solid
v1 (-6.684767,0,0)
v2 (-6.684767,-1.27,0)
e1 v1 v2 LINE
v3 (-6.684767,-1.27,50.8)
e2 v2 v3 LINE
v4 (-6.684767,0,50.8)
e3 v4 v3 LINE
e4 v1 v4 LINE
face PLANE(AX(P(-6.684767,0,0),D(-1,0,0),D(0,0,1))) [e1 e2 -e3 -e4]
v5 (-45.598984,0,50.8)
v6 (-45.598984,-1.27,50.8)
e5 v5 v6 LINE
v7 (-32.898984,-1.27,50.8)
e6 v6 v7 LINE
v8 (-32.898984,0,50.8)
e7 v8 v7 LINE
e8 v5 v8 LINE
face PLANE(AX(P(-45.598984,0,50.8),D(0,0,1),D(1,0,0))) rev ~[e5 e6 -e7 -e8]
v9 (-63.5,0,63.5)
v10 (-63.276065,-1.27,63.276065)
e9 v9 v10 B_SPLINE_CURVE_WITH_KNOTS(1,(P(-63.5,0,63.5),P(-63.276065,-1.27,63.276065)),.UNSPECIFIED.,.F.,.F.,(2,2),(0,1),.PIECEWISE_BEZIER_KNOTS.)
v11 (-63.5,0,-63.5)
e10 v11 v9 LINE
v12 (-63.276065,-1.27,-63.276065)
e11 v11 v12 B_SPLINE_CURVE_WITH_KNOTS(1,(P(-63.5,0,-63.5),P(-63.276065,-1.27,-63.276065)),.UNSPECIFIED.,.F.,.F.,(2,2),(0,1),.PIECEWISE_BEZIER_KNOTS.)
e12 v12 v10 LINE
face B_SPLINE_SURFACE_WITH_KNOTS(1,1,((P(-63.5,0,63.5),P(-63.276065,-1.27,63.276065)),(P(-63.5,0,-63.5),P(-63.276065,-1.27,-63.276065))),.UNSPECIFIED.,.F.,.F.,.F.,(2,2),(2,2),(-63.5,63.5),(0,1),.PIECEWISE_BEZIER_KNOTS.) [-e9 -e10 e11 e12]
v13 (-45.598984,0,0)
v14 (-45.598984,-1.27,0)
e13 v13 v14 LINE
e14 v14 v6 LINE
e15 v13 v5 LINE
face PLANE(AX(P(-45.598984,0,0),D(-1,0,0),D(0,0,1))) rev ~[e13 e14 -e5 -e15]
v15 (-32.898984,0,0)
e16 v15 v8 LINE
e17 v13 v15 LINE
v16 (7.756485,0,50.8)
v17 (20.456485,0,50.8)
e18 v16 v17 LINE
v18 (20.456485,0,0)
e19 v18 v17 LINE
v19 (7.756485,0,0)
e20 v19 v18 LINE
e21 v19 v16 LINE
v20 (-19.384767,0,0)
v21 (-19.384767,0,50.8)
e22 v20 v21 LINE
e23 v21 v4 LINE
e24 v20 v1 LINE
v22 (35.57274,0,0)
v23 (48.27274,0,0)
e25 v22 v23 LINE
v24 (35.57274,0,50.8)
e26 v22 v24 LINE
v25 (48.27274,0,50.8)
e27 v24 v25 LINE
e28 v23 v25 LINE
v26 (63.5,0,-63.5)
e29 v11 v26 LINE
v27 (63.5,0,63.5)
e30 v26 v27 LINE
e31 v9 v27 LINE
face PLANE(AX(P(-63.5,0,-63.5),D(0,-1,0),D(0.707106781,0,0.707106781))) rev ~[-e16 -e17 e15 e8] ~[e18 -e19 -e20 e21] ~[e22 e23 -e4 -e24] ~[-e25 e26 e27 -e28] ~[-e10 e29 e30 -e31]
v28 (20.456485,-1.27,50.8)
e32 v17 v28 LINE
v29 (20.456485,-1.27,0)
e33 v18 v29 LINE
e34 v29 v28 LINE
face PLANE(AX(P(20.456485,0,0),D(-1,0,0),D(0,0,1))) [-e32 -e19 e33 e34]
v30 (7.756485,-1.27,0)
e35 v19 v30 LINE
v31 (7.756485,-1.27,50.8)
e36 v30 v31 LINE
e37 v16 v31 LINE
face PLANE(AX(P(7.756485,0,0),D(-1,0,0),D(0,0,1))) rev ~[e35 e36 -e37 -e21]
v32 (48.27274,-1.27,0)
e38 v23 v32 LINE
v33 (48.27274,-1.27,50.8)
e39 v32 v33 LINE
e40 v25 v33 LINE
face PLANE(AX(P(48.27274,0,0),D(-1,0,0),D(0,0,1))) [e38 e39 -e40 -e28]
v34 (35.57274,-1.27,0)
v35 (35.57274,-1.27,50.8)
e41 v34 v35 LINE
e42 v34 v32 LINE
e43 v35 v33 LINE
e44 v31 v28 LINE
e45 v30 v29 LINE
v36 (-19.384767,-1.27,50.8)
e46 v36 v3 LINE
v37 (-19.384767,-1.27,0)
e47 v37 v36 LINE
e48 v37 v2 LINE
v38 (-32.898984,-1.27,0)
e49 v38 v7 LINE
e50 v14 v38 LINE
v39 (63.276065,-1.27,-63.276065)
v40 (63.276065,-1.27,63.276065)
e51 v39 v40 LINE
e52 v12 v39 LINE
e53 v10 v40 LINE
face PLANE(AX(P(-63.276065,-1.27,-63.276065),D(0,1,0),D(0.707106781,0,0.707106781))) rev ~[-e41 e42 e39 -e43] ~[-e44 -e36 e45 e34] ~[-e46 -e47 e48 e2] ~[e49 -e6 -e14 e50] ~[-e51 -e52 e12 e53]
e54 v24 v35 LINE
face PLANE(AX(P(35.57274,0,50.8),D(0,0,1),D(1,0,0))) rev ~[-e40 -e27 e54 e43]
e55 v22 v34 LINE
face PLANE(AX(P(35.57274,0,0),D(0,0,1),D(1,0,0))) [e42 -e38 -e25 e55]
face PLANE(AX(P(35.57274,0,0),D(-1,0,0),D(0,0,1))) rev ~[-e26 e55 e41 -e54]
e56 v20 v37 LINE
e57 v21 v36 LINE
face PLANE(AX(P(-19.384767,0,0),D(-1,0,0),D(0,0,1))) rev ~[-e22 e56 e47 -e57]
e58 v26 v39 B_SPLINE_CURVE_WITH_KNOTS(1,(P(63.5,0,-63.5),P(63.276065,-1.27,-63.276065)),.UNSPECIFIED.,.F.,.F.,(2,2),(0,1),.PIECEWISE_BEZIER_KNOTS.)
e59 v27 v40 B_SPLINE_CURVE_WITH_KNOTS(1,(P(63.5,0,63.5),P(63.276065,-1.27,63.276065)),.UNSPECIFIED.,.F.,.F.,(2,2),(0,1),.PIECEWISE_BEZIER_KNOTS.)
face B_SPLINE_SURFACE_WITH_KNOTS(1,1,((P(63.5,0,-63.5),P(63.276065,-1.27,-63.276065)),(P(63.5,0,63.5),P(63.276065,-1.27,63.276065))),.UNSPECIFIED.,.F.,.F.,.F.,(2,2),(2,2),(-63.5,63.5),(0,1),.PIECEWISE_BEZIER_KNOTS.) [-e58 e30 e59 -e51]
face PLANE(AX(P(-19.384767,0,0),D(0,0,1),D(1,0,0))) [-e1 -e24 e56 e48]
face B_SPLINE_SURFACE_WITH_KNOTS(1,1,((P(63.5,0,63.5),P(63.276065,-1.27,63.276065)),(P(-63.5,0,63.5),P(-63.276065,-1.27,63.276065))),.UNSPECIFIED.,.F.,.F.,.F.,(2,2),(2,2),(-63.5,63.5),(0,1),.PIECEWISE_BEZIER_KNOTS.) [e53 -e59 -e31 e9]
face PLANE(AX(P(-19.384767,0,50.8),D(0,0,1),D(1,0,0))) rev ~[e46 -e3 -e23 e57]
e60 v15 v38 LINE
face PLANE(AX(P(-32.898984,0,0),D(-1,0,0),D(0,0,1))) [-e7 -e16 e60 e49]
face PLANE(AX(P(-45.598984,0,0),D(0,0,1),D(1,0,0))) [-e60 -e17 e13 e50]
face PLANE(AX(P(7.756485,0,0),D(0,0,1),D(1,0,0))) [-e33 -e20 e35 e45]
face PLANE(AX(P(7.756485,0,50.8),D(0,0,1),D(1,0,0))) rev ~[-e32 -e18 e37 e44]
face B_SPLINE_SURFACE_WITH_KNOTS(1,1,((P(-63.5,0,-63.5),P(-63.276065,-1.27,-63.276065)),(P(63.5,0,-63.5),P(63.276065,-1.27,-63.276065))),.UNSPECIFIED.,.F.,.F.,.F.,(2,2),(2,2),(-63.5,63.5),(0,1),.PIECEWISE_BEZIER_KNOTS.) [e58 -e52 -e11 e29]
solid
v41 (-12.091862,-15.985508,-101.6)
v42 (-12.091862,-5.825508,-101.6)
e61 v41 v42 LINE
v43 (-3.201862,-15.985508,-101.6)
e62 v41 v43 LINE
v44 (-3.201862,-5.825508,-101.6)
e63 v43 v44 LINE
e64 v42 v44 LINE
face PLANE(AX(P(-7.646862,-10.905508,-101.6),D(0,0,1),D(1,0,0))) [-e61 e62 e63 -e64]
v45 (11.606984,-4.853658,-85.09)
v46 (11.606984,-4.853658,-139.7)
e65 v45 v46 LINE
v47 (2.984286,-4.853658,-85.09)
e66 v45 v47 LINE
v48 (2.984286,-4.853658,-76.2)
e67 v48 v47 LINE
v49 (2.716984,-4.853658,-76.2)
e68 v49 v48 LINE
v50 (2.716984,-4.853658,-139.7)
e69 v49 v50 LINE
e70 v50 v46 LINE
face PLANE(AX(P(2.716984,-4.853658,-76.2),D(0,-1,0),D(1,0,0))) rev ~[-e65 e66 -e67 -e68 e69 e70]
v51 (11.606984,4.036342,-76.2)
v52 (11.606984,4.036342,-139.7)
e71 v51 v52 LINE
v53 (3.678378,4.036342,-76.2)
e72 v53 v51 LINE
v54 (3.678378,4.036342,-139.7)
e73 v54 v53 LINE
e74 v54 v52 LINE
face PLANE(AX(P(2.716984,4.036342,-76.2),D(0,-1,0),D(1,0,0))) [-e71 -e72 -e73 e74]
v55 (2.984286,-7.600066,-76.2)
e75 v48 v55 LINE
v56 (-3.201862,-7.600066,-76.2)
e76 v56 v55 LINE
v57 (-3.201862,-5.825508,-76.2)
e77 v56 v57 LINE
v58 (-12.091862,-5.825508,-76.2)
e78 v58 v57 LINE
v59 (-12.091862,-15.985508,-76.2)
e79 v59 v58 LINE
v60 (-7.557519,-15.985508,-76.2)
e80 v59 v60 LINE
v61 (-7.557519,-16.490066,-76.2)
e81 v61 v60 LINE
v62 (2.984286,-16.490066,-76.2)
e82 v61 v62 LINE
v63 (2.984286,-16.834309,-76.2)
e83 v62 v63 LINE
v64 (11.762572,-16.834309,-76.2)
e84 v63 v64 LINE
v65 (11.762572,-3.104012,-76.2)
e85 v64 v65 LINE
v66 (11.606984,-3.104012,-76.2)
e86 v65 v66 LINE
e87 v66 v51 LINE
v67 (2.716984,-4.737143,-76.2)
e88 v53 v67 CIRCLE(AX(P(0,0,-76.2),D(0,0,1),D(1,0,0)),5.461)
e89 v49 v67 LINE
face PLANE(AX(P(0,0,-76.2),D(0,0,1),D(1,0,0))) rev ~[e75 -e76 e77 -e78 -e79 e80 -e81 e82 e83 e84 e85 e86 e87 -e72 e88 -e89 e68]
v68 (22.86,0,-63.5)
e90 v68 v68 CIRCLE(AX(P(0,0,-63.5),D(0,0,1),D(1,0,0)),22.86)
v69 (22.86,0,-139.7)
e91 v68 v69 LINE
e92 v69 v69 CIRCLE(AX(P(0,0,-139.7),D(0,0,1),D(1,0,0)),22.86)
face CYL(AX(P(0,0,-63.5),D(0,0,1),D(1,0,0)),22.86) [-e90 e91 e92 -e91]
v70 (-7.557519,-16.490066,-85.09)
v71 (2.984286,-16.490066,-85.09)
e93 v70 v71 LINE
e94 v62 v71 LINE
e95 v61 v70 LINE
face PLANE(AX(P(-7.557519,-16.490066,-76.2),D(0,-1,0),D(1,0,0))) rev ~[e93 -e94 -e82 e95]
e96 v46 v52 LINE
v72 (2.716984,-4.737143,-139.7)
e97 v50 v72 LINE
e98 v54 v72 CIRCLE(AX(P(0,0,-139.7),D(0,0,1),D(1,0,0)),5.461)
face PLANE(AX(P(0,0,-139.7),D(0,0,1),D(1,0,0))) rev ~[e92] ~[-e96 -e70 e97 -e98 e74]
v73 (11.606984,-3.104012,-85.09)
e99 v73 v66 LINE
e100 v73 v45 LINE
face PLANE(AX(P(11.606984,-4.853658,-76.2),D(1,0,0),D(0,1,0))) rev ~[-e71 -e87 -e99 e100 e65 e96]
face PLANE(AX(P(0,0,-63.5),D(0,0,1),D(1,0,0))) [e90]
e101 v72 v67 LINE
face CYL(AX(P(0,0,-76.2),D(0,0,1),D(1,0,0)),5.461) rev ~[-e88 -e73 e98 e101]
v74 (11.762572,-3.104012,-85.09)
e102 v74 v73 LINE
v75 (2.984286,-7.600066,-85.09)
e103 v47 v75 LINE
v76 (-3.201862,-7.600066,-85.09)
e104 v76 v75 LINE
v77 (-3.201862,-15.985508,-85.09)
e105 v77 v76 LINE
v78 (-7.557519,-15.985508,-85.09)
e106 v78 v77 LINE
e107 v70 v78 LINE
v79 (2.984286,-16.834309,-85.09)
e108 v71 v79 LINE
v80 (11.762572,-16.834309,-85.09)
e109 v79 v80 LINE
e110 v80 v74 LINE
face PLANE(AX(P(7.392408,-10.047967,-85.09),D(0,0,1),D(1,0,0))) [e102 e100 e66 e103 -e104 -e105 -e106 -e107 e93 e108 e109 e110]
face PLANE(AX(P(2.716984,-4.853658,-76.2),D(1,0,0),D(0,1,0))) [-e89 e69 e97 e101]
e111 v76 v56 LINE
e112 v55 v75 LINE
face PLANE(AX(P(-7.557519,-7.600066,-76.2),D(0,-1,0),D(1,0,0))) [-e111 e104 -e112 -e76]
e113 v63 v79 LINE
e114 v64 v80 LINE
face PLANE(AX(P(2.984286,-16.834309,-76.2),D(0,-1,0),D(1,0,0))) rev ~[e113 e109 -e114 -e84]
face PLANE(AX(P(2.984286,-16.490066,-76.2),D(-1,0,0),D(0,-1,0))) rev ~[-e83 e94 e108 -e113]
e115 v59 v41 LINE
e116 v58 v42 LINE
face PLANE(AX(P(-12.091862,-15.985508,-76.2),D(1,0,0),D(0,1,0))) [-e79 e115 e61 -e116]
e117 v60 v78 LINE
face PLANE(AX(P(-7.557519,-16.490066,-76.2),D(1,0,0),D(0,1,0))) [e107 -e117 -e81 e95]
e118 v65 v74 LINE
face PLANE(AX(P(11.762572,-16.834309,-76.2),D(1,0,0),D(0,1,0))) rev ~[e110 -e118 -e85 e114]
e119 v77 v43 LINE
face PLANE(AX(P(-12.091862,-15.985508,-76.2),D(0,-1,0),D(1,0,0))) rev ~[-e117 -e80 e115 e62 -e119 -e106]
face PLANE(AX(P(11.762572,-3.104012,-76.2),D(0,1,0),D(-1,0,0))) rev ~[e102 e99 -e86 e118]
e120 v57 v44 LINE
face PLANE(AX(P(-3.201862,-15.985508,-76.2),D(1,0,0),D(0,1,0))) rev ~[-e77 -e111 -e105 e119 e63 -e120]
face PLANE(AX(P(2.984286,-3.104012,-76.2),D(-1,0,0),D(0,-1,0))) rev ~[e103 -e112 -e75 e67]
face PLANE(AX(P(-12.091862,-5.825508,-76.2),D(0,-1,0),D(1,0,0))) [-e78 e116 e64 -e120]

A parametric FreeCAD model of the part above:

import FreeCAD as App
import Part
import Sketcher
Q = App.Units.Quantity


def add_polygon(sketch, points):
    """Adds a closed chain of lines whose ends are joined by coincident constraints."""
    first, n = sketch.GeometryCount, len(points)
    for a, b in zip(points, points[1:] + points[:1]):
        sketch.addGeometry(Part.LineSegment(App.Vector(*a, 0), App.Vector(*b, 0)), False)
    for i in range(n):
        sketch.addConstraint(Sketcher.Constraint("Coincident", first + i, 2, first + (i + 1) % n, 1))

doc = App.newDocument("Part")
params = doc.addObject("Spreadsheet::Sheet", "Params")
for row, (alias, value) in enumerate([
    ("sketch1_width", "5 in"),
    ("pad1_length", "0.05 in"),
    ("pad1_taper", "-10 deg"),
    ("sketch2_height", "2 in"),
    ("sketch2_width", "0.5 in"),
    ("pocket1_length", "1 in"),
    ("sketch3_height", "2 in"),
    ("sketch3_width", "0.5 in"),
    ("pocket2_length", "1 in"),
    ("sketch4_height", "2 in"),
    ("sketch4_width", "0.5 in"),
    ("pocket3_length", "1 in"),
    ("sketch5_height", "2 in"),
    ("sketch5_width", "0.5 in"),
    ("pocket4_length", "1 in"),
    ("sketch6_diameter", "1.8 in"),
    ("pad2_length", "3 in"),
    ("sketch7_diameter", "0.43 in"),
    ("pocket5_length", "2.75 in"),
    ("sketch8_width", "0.35 in"),
    ("pocket6_length", "2.5 in"),
    ("sketch9_height", "0.35 in"),
    ("pocket7_length", "0.35 in"),
    ("sketch10_height", "0.4 in"),
    ("sketch10_width", "0.35 in"),
    ("pocket8_length", "1 in"),
], start=1):
    params.set(f"A{row}", alias)
    params.set(f"B{row}", "=" + value)
    params.setAlias(f"B{row}", alias)

body = doc.addObject("PartDesign::Body", "Body")

# Sketch on XZ plane
sketch1 = body.newObject("Sketcher::SketchObject", "Sketch")
sketch1.AttachmentSupport = (doc.getObject("XZ_Plane"), [""])
sketch1.MapMode = "FlatFace"
add_polygon(sketch1, [(-64, 64), (-64, -64), (64, -64), (64, 64)])  # lines 0-3
sketch1.addConstraint([
    Sketcher.Constraint("Vertical", 0),
    Sketcher.Constraint("Horizontal", 1),
    Sketcher.Constraint("Vertical", 2),
    Sketcher.Constraint("Horizontal", 3),
    Sketcher.Constraint("Symmetric", 0, 2, 2, 2, -1, 1),
    Sketcher.Constraint("Equal", 3, 0),
    Sketcher.Constraint("DistanceX", 1, 1, 1, 2, Q("5 in")),
])
sketch1.setExpression("Constraints[10]", "Params.sketch1_width")
pad1 = body.newObject("PartDesign::Pad", "Pad")
pad1.Profile = sketch1
pad1.setExpression("Length", "Params.pad1_length")
pad1.setExpression("TaperAngle", "Params.pad1_taper")

# Sketch on XZ plane
sketch2 = body.newObject("Sketcher::SketchObject", "Sketch001")
sketch2.AttachmentSupport = (doc.getObject("XZ_Plane"), [""])
sketch2.MapMode = "FlatFace"
add_polygon(sketch2, [(-46, 51), (-46, 0), (-33, 0), (-33, 51)])  # lines 0-3
sketch2.addConstraint([
    Sketcher.Constraint("Vertical", 0),
    Sketcher.Constraint("Horizontal", 1),
    Sketcher.Constraint("Vertical", 2),
    Sketcher.Constraint("Horizontal", 3),
    Sketcher.Constraint("PointOnObject", 0, 2, -1),
    Sketcher.Constraint("DistanceY", 0, 2, 0, 1, Q("2 in")),
    Sketcher.Constraint("DistanceX", 1, 1, 1, 2, Q("0.5 in")),
    Sketcher.Constraint("DistanceX", 0, 2, -1, 1, Q("45.598984 mm")),
])
sketch2.setExpression("Constraints[9]", "Params.sketch2_height")
sketch2.setExpression("Constraints[10]", "Params.sketch2_width")
pocket1 = body.newObject("PartDesign::Pocket", "Pocket")
pocket1.Profile = sketch2
pocket1.setExpression("Length", "Params.pocket1_length")
pocket1.Reversed = True

# Sketch on XZ plane
sketch3 = body.newObject("Sketcher::SketchObject", "Sketch002")
sketch3.AttachmentSupport = (doc.getObject("XZ_Plane"), [""])
sketch3.MapMode = "FlatFace"
add_polygon(sketch3, [(-19, 51), (-19, 0), (-7, 0), (-7, 51)])  # lines 0-3
sketch3.addConstraint([
    Sketcher.Constraint("Vertical", 0),
    Sketcher.Constraint("Horizontal", 1),
    Sketcher.Constraint("Vertical", 2),
    Sketcher.Constraint("Horizontal", 3),
    Sketcher.Constraint("PointOnObject", 0, 2, -1),
    Sketcher.Constraint("DistanceY", 0, 2, 0, 1, Q("2 in")),
    Sketcher.Constraint("DistanceX", 1, 1, 1, 2, Q("0.5 in")),
    Sketcher.Constraint("DistanceX", 0, 2, -1, 1, Q("19.384767 mm")),
])
sketch3.setExpression("Constraints[9]", "Params.sketch3_height")
sketch3.setExpression("Constraints[10]", "Params.sketch3_width")
pocket2 = body.newObject("PartDesign::Pocket", "Pocket001")
pocket2.Profile = sketch3
pocket2.setExpression("Length", "Params.pocket2_length")
pocket2.Reversed = True

# Sketch on XZ plane
sketch4 = body.newObject("Sketcher::SketchObject", "Sketch003")
sketch4.AttachmentSupport = (doc.getObject("XZ_Plane"), [""])
sketch4.MapMode = "FlatFace"
add_polygon(sketch4, [(8, 51), (8, 0), (20, 0), (20, 51)])  # lines 0-3
sketch4.addConstraint([
    Sketcher.Constraint("Vertical", 0),
    Sketcher.Constraint("Horizontal", 1),
    Sketcher.Constraint("Vertical", 2),
    Sketcher.Constraint("Horizontal", 3),
    Sketcher.Constraint("PointOnObject", 0, 2, -1),
    Sketcher.Constraint("DistanceY", 0, 2, 0, 1, Q("2 in")),
    Sketcher.Constraint("DistanceX", 1, 1, 1, 2, Q("0.5 in")),
    Sketcher.Constraint("DistanceX", -1, 1, 0, 2, Q("7.756485 mm")),
])
sketch4.setExpression("Constraints[9]", "Params.sketch4_height")
sketch4.setExpression("Constraints[10]", "Params.sketch4_width")
pocket3 = body.newObject("PartDesign::Pocket", "Pocket002")
pocket3.Profile = sketch4
pocket3.setExpression("Length", "Params.pocket3_length")
pocket3.Reversed = True

# Sketch on XZ plane
sketch5 = body.newObject("Sketcher::SketchObject", "Sketch004")
sketch5.AttachmentSupport = (doc.getObject("XZ_Plane"), [""])
sketch5.MapMode = "FlatFace"
add_polygon(sketch5, [(36, 51), (36, 0), (48, 0), (48, 51)])  # lines 0-3
sketch5.addConstraint([
    Sketcher.Constraint("Vertical", 0),
    Sketcher.Constraint("Horizontal", 1),
    Sketcher.Constraint("Vertical", 2),
    Sketcher.Constraint("Horizontal", 3),
    Sketcher.Constraint("PointOnObject", 0, 2, -1),
    Sketcher.Constraint("DistanceY", 0, 2, 0, 1, Q("2 in")),
    Sketcher.Constraint("DistanceX", 1, 1, 1, 2, Q("0.5 in")),
    Sketcher.Constraint("DistanceX", -1, 1, 0, 2, Q("35.57274 mm")),
])
sketch5.setExpression("Constraints[9]", "Params.sketch5_height")
sketch5.setExpression("Constraints[10]", "Params.sketch5_width")
pocket4 = body.newObject("PartDesign::Pocket", "Pocket003")
pocket4.Profile = sketch5
pocket4.setExpression("Length", "Params.pocket4_length")
pocket4.Reversed = True
body2 = doc.addObject("PartDesign::Body", "Body001")

# Sketch on XY plane
sketch6 = body2.newObject("Sketcher::SketchObject", "Sketch005")
sketch6.AttachmentSupport = (doc.getObject("XY_Plane001"), [""])
sketch6.MapMode = "FlatFace"
sketch6.AttachmentOffset = App.Placement(App.Vector(0, 0, -2.5 * 25.4), App.Rotation())
sketch6.addGeometry(Part.Circle(App.Vector(0, 0, 0), App.Vector(0, 0, 1), 23), False)
sketch6.addConstraint([
    Sketcher.Constraint("Coincident", 0, 3, -1, 1),
    Sketcher.Constraint("Diameter", 0, Q("1.8 in")),
])
sketch6.setExpression("Constraints[1]", "Params.sketch6_diameter")
pad2 = body2.newObject("PartDesign::Pad", "Pad001")
pad2.Profile = sketch6
pad2.setExpression("Length", "Params.pad2_length")
pad2.Reversed = True

# Sketch on XY plane
sketch7 = body2.newObject("Sketcher::SketchObject", "Sketch006")
sketch7.AttachmentSupport = (doc.getObject("XY_Plane001"), [""])
sketch7.MapMode = "FlatFace"
sketch7.AttachmentOffset = App.Placement(App.Vector(0, 0, -3 * 25.4), App.Rotation())
sketch7.addGeometry(Part.Circle(App.Vector(0, 0, 0), App.Vector(0, 0, 1), 5), False)
sketch7.addConstraint([
    Sketcher.Constraint("Coincident", 0, 3, -1, 1),
    Sketcher.Constraint("Diameter", 0, Q("0.43 in")),
])
sketch7.setExpression("Constraints[1]", "Params.sketch7_diameter")
pocket5 = body2.newObject("PartDesign::Pocket", "Pocket004")
pocket5.Profile = sketch7
pocket5.setExpression("Length", "Params.pocket5_length")

# Sketch on XY plane
sketch8 = body2.newObject("Sketcher::SketchObject", "Sketch007")
sketch8.AttachmentSupport = (doc.getObject("XY_Plane001"), [""])
sketch8.MapMode = "FlatFace"
sketch8.AttachmentOffset = App.Placement(App.Vector(0, 0, -3 * 25.4), App.Rotation())
add_polygon(sketch8, [(3, 4), (3, -5), (12, -5), (12, 4)])  # lines 0-3
sketch8.addConstraint([
    Sketcher.Constraint("Vertical", 0),
    Sketcher.Constraint("Horizontal", 1),
    Sketcher.Constraint("Vertical", 2),
    Sketcher.Constraint("Horizontal", 3),
    Sketcher.Constraint("Equal", 3, 0),
    Sketcher.Constraint("DistanceX", 1, 1, 1, 2, Q("0.35 in")),
    Sketcher.Constraint("DistanceY", 0, 2, -1, 1, Q("4.853658 mm")),
    Sketcher.Constraint("DistanceX", -1, 1, 0, 2, Q("2.716984 mm")),
])
sketch8.setExpression("Constraints[9]", "Params.sketch8_width")
pocket6 = body2.newObject("PartDesign::Pocket", "Pocket005")
pocket6.Profile = sketch8
pocket6.setExpression("Length", "Params.pocket6_length")

# Sketch on XY plane
sketch9 = body2.newObject("Sketcher::SketchObject", "Sketch008")
sketch9.AttachmentSupport = (doc.getObject("XY_Plane001"), [""])
sketch9.MapMode = "FlatFace"
sketch9.AttachmentOffset = App.Placement(App.Vector(0, 0, -3 * 25.4), App.Rotation())
add_polygon(sketch9, [(2.98, -16.49), (2.98, -16.83), (11.76, -16.83), (11.76, -3.1), (2.98, -3.1), (2.98, -7.6), (-7.56, -7.6), (-7.56, -16.49)])  # lines 0-7
sketch9.addConstraint([
    Sketcher.Constraint("Vertical", 0),
    Sketcher.Constraint("Horizontal", 1),
    Sketcher.Constraint("Vertical", 2),
    Sketcher.Constraint("Horizontal", 3),
    Sketcher.Constraint("Vertical", 4),
    Sketcher.Constraint("Horizontal", 5),
    Sketcher.Constraint("Vertical", 6),
    Sketcher.Constraint("Horizontal", 7),
    Sketcher.Constraint("Vertical", 0, 2, 3, 2),
    Sketcher.Constraint("DistanceY", 6, 2, 6, 1, Q("0.35 in")),
    Sketcher.Constraint("DistanceX", 1, 1, 1, 2, Q("8.778286 mm")),
    Sketcher.Constraint("DistanceX", 5, 2, 5, 1, Q("10.541805 mm")),
    Sketcher.Constraint("DistanceY", 0, 2, 0, 1, Q("0.344243 mm")),
    Sketcher.Constraint("DistanceY", 2, 1, 2, 2, Q("13.730296 mm")),
    Sketcher.Constraint("DistanceY", 0, 2, -1, 1, Q("16.834309 mm")),
    Sketcher.Constraint("DistanceX", -1, 1, 1, 2, Q("11.762572 mm")),
])
sketch9.setExpression("Constraints[17]", "Params.sketch9_height")
pocket7 = body2.newObject("PartDesign::Pocket", "Pocket006")
pocket7.Profile = sketch9
pocket7.setExpression("Length", "Params.pocket7_length")

# Sketch on XY plane
sketch10 = body2.newObject("Sketcher::SketchObject", "Sketch009")
sketch10.AttachmentSupport = (doc.getObject("XY_Plane001"), [""])
sketch10.MapMode = "FlatFace"
sketch10.AttachmentOffset = App.Placement(App.Vector(0, 0, -3 * 25.4), App.Rotation())
add_polygon(sketch10, [(-12, -6), (-12, -16), (-3, -16), (-3, -6)])  # lines 0-3
sketch10.addConstraint([
    Sketcher.Constraint("Vertical", 0),
    Sketcher.Constraint("Horizontal", 1),
    Sketcher.Constraint("Vertical", 2),
    Sketcher.Constraint("Horizontal", 3),
    Sketcher.Constraint("DistanceY", 0, 2, 0, 1, Q("0.4 in")),
    Sketcher.Constraint("DistanceX", 1, 1, 1, 2, Q("0.35 in")),
    Sketcher.Constraint("DistanceX", 0, 2, -1, 1, Q("12.091862 mm")),
    Sketcher.Constraint("DistanceY", 0, 2, -1, 1, Q("15.985508 mm")),
])
sketch10.setExpression("Constraints[8]", "Params.sketch10_height")
sketch10.setExpression("Constraints[9]", "Params.sketch10_width")
pocket8 = body2.newObject("PartDesign::Pocket", "Pocket007")
pocket8.Profile = sketch10
pocket8.setExpression("Length", "Params.pocket8_length")

doc.recompute()
